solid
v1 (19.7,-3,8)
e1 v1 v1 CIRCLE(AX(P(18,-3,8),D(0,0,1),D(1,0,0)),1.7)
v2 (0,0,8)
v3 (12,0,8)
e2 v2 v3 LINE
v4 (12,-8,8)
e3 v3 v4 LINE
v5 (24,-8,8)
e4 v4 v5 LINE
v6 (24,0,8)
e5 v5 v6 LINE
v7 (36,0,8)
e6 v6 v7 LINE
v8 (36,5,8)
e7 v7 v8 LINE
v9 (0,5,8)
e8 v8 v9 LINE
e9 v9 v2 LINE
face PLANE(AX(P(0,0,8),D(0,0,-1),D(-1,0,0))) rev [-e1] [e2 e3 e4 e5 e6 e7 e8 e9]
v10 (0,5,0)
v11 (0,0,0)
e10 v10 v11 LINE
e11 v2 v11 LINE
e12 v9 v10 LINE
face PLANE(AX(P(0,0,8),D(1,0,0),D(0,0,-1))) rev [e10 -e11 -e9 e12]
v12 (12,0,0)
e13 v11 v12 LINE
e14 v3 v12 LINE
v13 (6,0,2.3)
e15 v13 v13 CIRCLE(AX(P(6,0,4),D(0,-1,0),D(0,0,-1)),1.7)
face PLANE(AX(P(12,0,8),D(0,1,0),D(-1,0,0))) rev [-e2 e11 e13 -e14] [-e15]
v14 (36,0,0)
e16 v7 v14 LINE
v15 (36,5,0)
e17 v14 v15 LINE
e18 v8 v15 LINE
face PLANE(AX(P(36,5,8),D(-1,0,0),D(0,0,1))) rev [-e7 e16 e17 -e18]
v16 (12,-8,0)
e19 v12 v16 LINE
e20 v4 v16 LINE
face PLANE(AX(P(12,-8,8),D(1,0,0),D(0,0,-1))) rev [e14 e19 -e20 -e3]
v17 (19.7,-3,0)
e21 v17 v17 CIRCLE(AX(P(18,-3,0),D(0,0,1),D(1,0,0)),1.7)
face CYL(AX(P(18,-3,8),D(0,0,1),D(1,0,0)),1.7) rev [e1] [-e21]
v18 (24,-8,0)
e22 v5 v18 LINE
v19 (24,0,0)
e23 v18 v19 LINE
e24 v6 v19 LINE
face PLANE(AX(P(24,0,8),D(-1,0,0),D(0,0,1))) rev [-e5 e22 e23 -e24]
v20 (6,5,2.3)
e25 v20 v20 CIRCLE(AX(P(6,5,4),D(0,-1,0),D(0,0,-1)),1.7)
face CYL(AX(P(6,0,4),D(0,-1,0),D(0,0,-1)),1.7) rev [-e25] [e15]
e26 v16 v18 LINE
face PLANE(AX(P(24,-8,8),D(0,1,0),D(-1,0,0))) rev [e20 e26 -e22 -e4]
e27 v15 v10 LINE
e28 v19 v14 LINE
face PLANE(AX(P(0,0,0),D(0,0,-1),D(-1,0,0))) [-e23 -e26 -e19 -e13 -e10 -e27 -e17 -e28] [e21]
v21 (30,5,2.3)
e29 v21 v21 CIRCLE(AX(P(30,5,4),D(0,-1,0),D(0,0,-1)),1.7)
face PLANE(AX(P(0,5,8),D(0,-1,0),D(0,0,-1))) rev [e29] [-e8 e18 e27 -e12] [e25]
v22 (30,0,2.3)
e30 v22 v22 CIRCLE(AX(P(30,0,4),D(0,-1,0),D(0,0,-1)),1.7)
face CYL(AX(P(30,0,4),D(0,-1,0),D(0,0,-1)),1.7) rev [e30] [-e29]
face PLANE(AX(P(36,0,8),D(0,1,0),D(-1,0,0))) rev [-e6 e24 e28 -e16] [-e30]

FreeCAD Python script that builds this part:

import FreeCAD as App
import Part
import Sketcher
from FreeCAD import Vector

doc = App.newDocument("Part")
params = doc.addObject("Spreadsheet::Sheet", "Params")
for row, (alias, value) in enumerate([
    ("sketch1_width", "12 mm"),
    ("sketch1_height", "5 mm"),
    ("sketch1_height2", "8 mm"),
    ("pad1_length", "8 mm"),
    ("sketch2_diameter", "3.4 mm"),
    ("hole_diameter", "3.4 mm"),
    ("sketch3_diameter", "3.4 mm"),
    ("hole2_diameter", "3.4 mm"),
], start=1):
    params.set(f"A{row}", alias)
    params.set(f"B{row}", "=" + value)
    params.setAlias(f"B{row}", alias)

body = doc.addObject("PartDesign::Body", "Body")

# Sketch on XY plane
sketch1 = body.newObject("Sketcher::SketchObject", "Sketch")
sketch1.AttachmentSupport = (doc.getObject("XY_Plane"), [""])
sketch1.MapMode = "FlatFace"
sketch1.addGeometry(Part.LineSegment(Vector(0, 5, 0), Vector(0, 0, 0)), False)
sketch1.addGeometry(Part.LineSegment(Vector(0, 0, 0), Vector(12, 0, 0)), False)
sketch1.addGeometry(Part.LineSegment(Vector(12, 0, 0), Vector(12, -8, 0)), False)
sketch1.addGeometry(Part.LineSegment(Vector(12, -8, 0), Vector(24, -8, 0)), False)
sketch1.addGeometry(Part.LineSegment(Vector(24, -8, 0), Vector(24, 0, 0)), False)
sketch1.addGeometry(Part.LineSegment(Vector(24, 0, 0), Vector(36, 0, 0)), False)
sketch1.addGeometry(Part.LineSegment(Vector(36, 0, 0), Vector(36, 5, 0)), False)
sketch1.addGeometry(Part.LineSegment(Vector(36, 5, 0), Vector(0, 5, 0)), False)
sketch1.addConstraint(Sketcher.Constraint("Coincident", 0, 2, 1, 1))
sketch1.addConstraint(Sketcher.Constraint("Coincident", 1, 2, 2, 1))
sketch1.addConstraint(Sketcher.Constraint("Coincident", 2, 2, 3, 1))
sketch1.addConstraint(Sketcher.Constraint("Coincident", 3, 2, 4, 1))
sketch1.addConstraint(Sketcher.Constraint("Coincident", 4, 2, 5, 1))
sketch1.addConstraint(Sketcher.Constraint("Coincident", 5, 2, 6, 1))
sketch1.addConstraint(Sketcher.Constraint("Coincident", 6, 2, 7, 1))
sketch1.addConstraint(Sketcher.Constraint("Coincident", 7, 2, 0, 1))
sketch1.addConstraint(Sketcher.Constraint("Vertical", 0))
sketch1.addConstraint(Sketcher.Constraint("Horizontal", 1))
sketch1.addConstraint(Sketcher.Constraint("Vertical", 2))
sketch1.addConstraint(Sketcher.Constraint("Horizontal", 3))
sketch1.addConstraint(Sketcher.Constraint("Vertical", 4))
sketch1.addConstraint(Sketcher.Constraint("Horizontal", 5))
sketch1.addConstraint(Sketcher.Constraint("Vertical", 6))
sketch1.addConstraint(Sketcher.Constraint("Horizontal", 7))
sketch1.addConstraint(Sketcher.Constraint("Coincident", 0, 2, -1, 1))
sketch1.addConstraint(Sketcher.Constraint("PointOnObject", 4, 2, -1))
sketch1.addConstraint(Sketcher.Constraint("Equal", 1, 3))
sketch1.addConstraint(Sketcher.Constraint("Equal", 3, 5))
sketch1.addConstraint(Sketcher.Constraint("DistanceX", 1, 1, 1, 2, 12.0))
sketch1.addConstraint(Sketcher.Constraint("DistanceY", 0, 2, 0, 1, 5.0))
sketch1.addConstraint(Sketcher.Constraint("DistanceY", 2, 2, 2, 1, 8.0))
sketch1.setExpression("Constraints[20]", "Params.sketch1_width")
sketch1.setExpression("Constraints[21]", "Params.sketch1_height")
sketch1.setExpression("Constraints[22]", "Params.sketch1_height2")
pad1 = body.newObject("PartDesign::Pad", "Pad")
pad1.Profile = sketch1
pad1.setExpression("Length", "Params.pad1_length")

# Sketch on XY plane
sketch2 = body.newObject("Sketcher::SketchObject", "Sketch001")
sketch2.AttachmentSupport = (doc.getObject("XY_Plane"), [""])
sketch2.MapMode = "FlatFace"
sketch2.AttachmentOffset = App.Placement(Vector(0, 0, 8), App.Rotation())
sketch2.addGeometry(Part.Circle(Vector(18, -3, 0), Vector(0, 0, 1), 1.7), False)
sketch2.addConstraint(Sketcher.Constraint("Diameter", 0, 3.4))
sketch2.addConstraint(Sketcher.Constraint("DistanceX", -1, 1, 0, 3, 18.0))
sketch2.addConstraint(Sketcher.Constraint("DistanceY", 0, 3, -1, 1, 3.0))
sketch2.setExpression("Constraints[0]", "Params.sketch2_diameter")
doc.recompute()
hole = body.newObject("PartDesign::Hole", "Hole")
hole.Profile = sketch2
hole.ThreadType = "None"
hole.setExpression("Diameter", "Params.hole_diameter")
hole.DepthType = "ThroughAll"

# Sketch on XZ plane
sketch3 = body.newObject("Sketcher::SketchObject", "Sketch002")
sketch3.AttachmentSupport = (doc.getObject("XZ_Plane"), [""])
sketch3.MapMode = "FlatFace"
sketch3.addGeometry(Part.Circle(Vector(6, 4, 0), Vector(0, 0, 1), 1.7), False)
sketch3.addGeometry(Part.Circle(Vector(30, 4, 0), Vector(0, 0, 1), 1.7), False)
sketch3.addConstraint(Sketcher.Constraint("Equal", 0, 1))
sketch3.addConstraint(Sketcher.Constraint("Horizontal", 0, 3, 1, 3))
sketch3.addConstraint(Sketcher.Constraint("Diameter", 0, 3.4))
sketch3.addConstraint(Sketcher.Constraint("DistanceX", -1, 1, 0, 3, 6.0))
sketch3.addConstraint(Sketcher.Constraint("DistanceY", -1, 1, 0, 3, 4.0))
sketch3.addConstraint(Sketcher.Constraint("DistanceX", -1, 1, 1, 3, 30.0))
sketch3.setExpression("Constraints[2]", "Params.sketch3_diameter")
doc.recompute()
hole2 = body.newObject("PartDesign::Hole", "Hole001")
hole2.Profile = sketch3
hole2.ThreadType = "None"
hole2.setExpression("Diameter", "Params.hole2_diameter")
hole2.DepthType = "ThroughAll"

doc.recompute()
